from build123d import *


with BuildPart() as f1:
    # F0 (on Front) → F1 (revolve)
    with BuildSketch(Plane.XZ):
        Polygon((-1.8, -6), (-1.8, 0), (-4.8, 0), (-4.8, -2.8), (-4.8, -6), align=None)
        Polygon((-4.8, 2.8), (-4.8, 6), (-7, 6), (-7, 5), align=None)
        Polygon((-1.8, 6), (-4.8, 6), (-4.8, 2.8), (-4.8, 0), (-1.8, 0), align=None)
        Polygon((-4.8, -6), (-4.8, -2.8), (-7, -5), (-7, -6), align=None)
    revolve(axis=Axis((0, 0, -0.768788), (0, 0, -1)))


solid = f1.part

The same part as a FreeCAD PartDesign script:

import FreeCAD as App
import Part
import Sketcher
from FreeCAD import Vector
Q = App.Units.Quantity

doc = App.newDocument("Part")
body = doc.addObject("PartDesign::Body", "Body")

sketch1 = body.newObject("Sketcher::SketchObject", "Sketch")
sketch1.AttachmentSupport = (doc.getObject("XZ_Plane"), [""])
sketch1.MapMode = "FlatFace"
sketch1.addGeometry(Part.LineSegment(Vector(-1.8, -6, 0), Vector(-1.8, 6, 0)), False)
sketch1.addGeometry(Part.LineSegment(Vector(-1.8, 6, 0), Vector(-7, 6, 0)), False)
sketch1.addGeometry(Part.LineSegment(Vector(-7, 6, 0), Vector(-7, 5, 0)), False)
sketch1.addGeometry(Part.LineSegment(Vector(-7, 5, 0), Vector(-4.8, 2.8, 0)), False)
sketch1.addGeometry(Part.LineSegment(Vector(-4.8, 2.8, 0), Vector(-4.8, -2.8, 0)), False)
sketch1.addGeometry(Part.LineSegment(Vector(-4.8, -2.8, 0), Vector(-7, -5, 0)), False)
sketch1.addGeometry(Part.LineSegment(Vector(-7, -5, 0), Vector(-7, -6, 0)), False)
sketch1.addGeometry(Part.LineSegment(Vector(-7, -6, 0), Vector(-1.8, -6, 0)), False)
sketch1.addConstraint(Sketcher.Constraint("Coincident", 0, 2, 1, 1))
sketch1.addConstraint(Sketcher.Constraint("Coincident", 1, 2, 2, 1))
sketch1.addConstraint(Sketcher.Constraint("Coincident", 2, 2, 3, 1))
sketch1.addConstraint(Sketcher.Constraint("Coincident", 3, 2, 4, 1))
sketch1.addConstraint(Sketcher.Constraint("Coincident", 4, 2, 5, 1))
sketch1.addConstraint(Sketcher.Constraint("Coincident", 5, 2, 6, 1))
sketch1.addConstraint(Sketcher.Constraint("Coincident", 6, 2, 7, 1))
sketch1.addConstraint(Sketcher.Constraint("Coincident", 7, 2, 0, 1))
sketch1.addConstraint(Sketcher.Constraint("Vertical", 0))
sketch1.addConstraint(Sketcher.Constraint("Horizontal", 1))
sketch1.addConstraint(Sketcher.Constraint("Vertical", 2))
sketch1.addConstraint(Sketcher.Constraint("Vertical", 4))
sketch1.addConstraint(Sketcher.Constraint("Vertical", 6))
sketch1.addConstraint(Sketcher.Constraint("Horizontal", 7))
sketch1.addConstraint(Sketcher.Constraint("Symmetric", 2, 2, 5, 2, -1))
sketch1.addConstraint(Sketcher.Constraint("Perpendicular", 3, 5))
sketch1.addConstraint(Sketcher.Constraint("Equal", 2, 6))
sketch1.addConstraint(Sketcher.Constraint("Equal", 3, 5))
sketch1.addConstraint(Sketcher.Constraint("DistanceY", 0, 1, 0, 2, Q("12 mm")))
sketch1.addConstraint(Sketcher.Constraint("DistanceY", 2, 2, 2, 1, Q("1 mm")))
sketch1.addConstraint(Sketcher.Constraint("DistanceX", 1, 2, 1, 1, Q("5.2 mm")))
sketch1.addConstraint(Sketcher.Constraint("DistanceY", 4, 2, 4, 1, Q("5.6 mm")))
sketch1.addConstraint(Sketcher.Constraint("DistanceX", 1, 2, -1, 1, Q("7 mm")))
revolution = body.newObject("PartDesign::Revolution", "Revolution")
revolution.Profile = sketch1
revolution.ReferenceAxis = (sketch1, ["V_Axis"])
revolution.Angle = 360

doc.recompute()
